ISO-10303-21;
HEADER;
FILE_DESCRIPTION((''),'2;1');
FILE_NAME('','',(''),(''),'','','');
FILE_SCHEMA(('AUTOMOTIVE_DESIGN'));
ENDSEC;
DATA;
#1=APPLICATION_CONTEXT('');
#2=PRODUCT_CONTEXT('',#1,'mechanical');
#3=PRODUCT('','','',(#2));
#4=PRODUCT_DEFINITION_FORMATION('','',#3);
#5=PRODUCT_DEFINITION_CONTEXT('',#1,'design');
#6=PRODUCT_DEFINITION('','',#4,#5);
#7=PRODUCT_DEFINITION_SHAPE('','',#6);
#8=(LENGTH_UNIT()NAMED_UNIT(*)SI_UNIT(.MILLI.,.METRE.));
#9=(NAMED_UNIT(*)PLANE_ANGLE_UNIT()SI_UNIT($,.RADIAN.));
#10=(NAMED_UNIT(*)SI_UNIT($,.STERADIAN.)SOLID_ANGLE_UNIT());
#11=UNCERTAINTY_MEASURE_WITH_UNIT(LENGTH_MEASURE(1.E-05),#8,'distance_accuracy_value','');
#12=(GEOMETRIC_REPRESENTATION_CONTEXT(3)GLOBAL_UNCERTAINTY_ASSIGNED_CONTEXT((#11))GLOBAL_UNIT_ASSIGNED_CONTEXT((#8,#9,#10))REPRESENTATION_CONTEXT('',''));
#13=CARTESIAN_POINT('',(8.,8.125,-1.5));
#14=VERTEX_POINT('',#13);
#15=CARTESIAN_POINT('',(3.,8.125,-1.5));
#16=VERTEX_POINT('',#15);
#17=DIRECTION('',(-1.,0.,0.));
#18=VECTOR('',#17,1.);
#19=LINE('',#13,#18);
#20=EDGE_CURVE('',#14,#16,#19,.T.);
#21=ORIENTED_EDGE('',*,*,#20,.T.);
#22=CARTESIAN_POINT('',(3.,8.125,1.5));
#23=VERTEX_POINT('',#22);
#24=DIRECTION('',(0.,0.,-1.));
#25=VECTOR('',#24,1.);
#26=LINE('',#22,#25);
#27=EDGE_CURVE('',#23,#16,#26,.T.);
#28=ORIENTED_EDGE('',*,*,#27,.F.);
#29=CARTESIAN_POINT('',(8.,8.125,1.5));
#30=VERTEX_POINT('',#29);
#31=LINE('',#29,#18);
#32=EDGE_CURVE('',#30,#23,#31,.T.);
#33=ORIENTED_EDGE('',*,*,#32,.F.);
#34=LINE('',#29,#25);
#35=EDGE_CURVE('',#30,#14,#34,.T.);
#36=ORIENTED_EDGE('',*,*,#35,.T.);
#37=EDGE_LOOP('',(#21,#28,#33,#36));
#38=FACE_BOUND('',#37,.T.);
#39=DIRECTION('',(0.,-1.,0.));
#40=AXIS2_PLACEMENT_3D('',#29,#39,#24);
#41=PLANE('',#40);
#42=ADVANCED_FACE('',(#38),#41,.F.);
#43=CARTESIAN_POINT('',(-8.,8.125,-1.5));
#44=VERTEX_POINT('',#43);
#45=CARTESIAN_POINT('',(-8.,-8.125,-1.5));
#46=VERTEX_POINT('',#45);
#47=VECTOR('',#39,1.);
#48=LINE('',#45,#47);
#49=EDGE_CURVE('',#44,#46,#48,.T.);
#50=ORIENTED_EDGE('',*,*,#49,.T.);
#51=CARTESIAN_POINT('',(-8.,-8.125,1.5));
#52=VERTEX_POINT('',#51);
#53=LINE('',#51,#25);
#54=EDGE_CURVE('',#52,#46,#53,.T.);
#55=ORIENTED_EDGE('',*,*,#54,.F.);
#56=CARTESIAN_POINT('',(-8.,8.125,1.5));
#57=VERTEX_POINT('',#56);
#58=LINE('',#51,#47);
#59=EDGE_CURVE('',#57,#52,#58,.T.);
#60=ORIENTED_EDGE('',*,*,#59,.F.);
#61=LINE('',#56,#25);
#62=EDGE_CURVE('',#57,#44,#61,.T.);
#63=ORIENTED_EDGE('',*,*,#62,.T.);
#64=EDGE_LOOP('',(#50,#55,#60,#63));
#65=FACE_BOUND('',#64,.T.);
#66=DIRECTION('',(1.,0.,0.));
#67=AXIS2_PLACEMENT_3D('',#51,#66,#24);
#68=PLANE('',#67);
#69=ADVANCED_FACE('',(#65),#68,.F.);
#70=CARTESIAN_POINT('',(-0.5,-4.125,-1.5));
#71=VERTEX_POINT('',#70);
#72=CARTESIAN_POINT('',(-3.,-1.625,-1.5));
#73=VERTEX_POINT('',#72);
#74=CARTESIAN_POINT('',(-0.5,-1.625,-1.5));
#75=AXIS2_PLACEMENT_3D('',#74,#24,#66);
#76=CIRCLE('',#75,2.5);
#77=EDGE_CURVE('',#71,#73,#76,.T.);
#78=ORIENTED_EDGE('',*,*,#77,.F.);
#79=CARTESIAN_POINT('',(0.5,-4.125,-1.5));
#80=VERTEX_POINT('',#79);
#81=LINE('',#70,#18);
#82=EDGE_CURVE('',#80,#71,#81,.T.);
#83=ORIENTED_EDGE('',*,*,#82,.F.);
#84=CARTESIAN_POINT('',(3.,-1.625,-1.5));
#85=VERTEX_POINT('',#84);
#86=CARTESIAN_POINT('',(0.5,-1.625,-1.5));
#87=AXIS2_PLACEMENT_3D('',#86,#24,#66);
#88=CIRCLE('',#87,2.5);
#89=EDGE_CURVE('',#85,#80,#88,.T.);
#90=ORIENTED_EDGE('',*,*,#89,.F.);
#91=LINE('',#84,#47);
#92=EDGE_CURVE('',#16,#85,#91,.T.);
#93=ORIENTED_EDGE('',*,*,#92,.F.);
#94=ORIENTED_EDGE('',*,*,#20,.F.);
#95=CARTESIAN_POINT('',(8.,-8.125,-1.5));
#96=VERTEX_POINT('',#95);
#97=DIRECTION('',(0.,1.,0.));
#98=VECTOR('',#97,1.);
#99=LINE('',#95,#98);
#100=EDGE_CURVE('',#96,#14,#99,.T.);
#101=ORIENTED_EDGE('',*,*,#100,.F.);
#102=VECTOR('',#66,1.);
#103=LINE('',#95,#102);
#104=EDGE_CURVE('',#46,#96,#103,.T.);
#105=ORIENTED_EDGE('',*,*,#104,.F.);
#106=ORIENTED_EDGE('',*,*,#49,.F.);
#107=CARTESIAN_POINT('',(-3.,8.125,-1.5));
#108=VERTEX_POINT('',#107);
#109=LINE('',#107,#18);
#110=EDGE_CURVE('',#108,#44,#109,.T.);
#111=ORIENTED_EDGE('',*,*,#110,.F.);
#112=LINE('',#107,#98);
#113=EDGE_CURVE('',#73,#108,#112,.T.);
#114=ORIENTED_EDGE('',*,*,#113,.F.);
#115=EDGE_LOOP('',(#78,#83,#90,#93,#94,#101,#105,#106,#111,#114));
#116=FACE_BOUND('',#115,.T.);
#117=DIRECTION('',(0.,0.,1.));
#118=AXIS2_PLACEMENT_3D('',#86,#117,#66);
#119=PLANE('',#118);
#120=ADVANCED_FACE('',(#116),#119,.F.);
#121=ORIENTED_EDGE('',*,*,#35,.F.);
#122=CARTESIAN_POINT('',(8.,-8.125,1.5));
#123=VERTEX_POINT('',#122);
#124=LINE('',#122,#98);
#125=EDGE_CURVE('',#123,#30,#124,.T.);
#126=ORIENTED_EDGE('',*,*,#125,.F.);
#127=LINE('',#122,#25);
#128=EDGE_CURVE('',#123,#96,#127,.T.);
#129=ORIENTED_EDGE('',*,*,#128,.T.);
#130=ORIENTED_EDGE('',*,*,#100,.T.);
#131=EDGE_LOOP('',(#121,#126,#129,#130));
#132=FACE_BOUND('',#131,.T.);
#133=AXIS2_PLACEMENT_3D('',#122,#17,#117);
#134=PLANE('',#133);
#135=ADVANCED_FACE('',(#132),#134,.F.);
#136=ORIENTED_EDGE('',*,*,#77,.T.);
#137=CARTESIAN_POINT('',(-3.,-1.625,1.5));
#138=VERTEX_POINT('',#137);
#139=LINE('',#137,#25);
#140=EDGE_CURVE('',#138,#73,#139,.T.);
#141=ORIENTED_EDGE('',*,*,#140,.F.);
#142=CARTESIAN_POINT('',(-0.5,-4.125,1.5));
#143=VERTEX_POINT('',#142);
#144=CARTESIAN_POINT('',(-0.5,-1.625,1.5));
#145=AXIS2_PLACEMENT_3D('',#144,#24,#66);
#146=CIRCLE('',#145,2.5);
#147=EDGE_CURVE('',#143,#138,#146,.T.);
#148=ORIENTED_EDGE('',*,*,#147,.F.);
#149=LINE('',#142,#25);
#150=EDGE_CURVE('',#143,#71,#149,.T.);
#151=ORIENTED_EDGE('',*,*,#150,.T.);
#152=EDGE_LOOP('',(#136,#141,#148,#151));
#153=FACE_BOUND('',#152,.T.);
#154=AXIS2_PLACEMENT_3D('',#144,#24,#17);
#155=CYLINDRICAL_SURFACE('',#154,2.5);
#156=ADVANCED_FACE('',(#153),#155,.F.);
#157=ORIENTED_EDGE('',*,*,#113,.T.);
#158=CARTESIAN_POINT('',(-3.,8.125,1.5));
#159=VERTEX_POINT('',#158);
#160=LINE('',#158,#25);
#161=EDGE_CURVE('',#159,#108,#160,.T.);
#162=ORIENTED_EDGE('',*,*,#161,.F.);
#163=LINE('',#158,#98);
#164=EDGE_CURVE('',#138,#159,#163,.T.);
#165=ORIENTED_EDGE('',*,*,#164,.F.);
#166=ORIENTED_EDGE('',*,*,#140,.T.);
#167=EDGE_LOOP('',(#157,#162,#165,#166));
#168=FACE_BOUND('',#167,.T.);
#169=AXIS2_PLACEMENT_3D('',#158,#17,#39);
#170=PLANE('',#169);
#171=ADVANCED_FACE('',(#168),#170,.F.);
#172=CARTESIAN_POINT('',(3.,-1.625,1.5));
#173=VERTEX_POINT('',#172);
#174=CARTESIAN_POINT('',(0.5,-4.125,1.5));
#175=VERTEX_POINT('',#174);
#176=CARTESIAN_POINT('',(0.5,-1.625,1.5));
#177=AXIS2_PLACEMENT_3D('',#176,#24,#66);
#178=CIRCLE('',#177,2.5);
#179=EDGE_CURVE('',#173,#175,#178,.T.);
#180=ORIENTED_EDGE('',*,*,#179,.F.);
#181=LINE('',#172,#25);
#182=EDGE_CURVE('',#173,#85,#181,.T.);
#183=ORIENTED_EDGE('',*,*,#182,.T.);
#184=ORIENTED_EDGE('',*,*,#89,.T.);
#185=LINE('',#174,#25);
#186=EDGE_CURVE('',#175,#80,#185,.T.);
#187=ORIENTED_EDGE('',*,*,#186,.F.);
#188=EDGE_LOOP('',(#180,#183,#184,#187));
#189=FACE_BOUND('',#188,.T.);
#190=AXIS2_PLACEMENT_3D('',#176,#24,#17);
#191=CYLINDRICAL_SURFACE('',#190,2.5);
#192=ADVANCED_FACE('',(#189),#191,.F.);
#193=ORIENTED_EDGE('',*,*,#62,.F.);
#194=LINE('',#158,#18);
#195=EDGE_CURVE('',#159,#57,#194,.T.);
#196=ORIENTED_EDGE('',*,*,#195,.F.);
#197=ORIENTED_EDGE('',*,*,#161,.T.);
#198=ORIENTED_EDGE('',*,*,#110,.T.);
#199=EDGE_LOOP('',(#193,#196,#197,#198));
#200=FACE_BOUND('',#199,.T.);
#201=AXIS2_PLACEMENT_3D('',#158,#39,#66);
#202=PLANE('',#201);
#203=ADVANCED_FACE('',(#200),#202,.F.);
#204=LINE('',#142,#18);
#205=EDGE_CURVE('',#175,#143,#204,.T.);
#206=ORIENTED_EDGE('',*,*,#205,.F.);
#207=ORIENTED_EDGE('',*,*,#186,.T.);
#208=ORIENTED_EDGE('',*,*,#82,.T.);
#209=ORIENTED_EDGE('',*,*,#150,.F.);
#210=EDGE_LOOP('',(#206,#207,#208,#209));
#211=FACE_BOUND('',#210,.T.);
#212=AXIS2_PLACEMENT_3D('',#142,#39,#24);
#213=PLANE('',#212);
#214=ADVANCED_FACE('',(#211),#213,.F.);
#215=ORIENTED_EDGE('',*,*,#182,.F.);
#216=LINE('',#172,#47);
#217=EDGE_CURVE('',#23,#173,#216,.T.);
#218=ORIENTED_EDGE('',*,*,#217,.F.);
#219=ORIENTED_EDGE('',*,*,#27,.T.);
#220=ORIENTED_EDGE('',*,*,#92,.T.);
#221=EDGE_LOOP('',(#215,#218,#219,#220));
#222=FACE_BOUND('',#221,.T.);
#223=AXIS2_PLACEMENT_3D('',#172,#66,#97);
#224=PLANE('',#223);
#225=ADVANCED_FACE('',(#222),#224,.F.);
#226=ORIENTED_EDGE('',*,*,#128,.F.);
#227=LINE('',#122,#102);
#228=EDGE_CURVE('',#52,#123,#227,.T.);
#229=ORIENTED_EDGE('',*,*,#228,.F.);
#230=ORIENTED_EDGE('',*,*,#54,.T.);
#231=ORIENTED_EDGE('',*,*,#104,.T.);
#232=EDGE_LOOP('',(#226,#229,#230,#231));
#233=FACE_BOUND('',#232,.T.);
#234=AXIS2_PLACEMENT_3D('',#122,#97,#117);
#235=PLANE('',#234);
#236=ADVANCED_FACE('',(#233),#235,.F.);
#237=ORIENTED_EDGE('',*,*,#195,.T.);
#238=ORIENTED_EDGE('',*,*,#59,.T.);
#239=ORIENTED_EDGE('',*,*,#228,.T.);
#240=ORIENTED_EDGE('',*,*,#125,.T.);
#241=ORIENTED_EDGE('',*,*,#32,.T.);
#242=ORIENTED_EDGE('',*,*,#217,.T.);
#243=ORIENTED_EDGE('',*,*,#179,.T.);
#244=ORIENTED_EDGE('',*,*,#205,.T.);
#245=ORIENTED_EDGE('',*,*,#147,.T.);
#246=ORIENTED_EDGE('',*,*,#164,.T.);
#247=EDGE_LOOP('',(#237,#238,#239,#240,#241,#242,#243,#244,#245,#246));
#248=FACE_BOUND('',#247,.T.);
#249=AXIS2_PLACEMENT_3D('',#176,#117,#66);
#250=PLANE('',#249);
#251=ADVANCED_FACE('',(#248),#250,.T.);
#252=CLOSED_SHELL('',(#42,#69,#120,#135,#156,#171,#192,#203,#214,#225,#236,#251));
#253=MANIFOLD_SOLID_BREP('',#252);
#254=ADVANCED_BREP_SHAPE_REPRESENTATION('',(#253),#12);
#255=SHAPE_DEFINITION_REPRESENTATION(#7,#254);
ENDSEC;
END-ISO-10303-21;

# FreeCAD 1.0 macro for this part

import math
import FreeCAD as App
import Part
import Sketcher

V = App.Vector
Q = App.Units.Quantity

doc = App.newDocument("Part")
params = doc.addObject("Spreadsheet::Sheet", "Params")
for row, (alias, value) in enumerate([
    ("sketch1_radius", "2.5 mm"),
    ("sketch1_width", "16 mm"),
    ("sketch1_width2", "5 mm"),
    ("sketch1_height", "16.25 mm"),
    ("pad1_length", "3 mm"),
], start=1):
    params.set(f"A{row}", alias)
    params.set(f"B{row}", "=" + value)
    params.setAlias(f"B{row}", alias)

body = doc.addObject("PartDesign::Body", "Body")

sketch1 = body.newObject("Sketcher::SketchObject", "Sketch")
sketch1.AttachmentSupport = (doc.getObject("XY_Plane"), [""])
sketch1.MapMode = "FlatFace"
sketch1.addGeometry([
    Part.LineSegment(V(-8, -8.125, 0), V(8, -8.125, 0)),
    Part.LineSegment(V(8, -8.125, 0), V(8, 8.125, 0)),
    Part.LineSegment(V(8, 8.125, 0), V(3, 8.125, 0)),
    Part.LineSegment(V(3, 8.125, 0), V(3, -1.625, 0)),
    Part.ArcOfCircle(Part.Circle(V(0.5, -1.625, 0), V(0, 0, 1), 2.5), math.radians(-90), math.radians(0)),
    Part.LineSegment(V(0.5, -4.125, 0), V(-0.5, -4.125, 0)),
    Part.ArcOfCircle(Part.Circle(V(-0.5, -1.625, 0), V(0, 0, 1), 2.5), math.radians(180), math.radians(270)),
    Part.LineSegment(V(-3, -1.625, 0), V(-3, 8.125, 0)),
    Part.LineSegment(V(-3, 8.125, 0), V(-8, 8.125, 0)),
    Part.LineSegment(V(-8, 8.125, 0), V(-8, -8.125, 0)),
], False)
sketch1.addConstraint([
    Sketcher.Constraint("Coincident", 0, 2, 1, 1),
    Sketcher.Constraint("Coincident", 1, 2, 2, 1),
    Sketcher.Constraint("Coincident", 2, 2, 3, 1),
    Sketcher.Constraint("Tangent", 3, 2, 4, 2),
    Sketcher.Constraint("Tangent", 4, 1, 5, 1),
    Sketcher.Constraint("Tangent", 5, 2, 6, 2),
    Sketcher.Constraint("Tangent", 6, 1, 7, 1),
    Sketcher.Constraint("Coincident", 7, 2, 8, 1),
    Sketcher.Constraint("Coincident", 8, 2, 9, 1),
    Sketcher.Constraint("Coincident", 9, 2, 0, 1),
    Sketcher.Constraint("Horizontal", 0),
    Sketcher.Constraint("Vertical", 1),
    Sketcher.Constraint("Horizontal", 2),
    Sketcher.Constraint("Vertical", 3),
    Sketcher.Constraint("Horizontal", 5),
    Sketcher.Constraint("Vertical", 7),
    Sketcher.Constraint("Horizontal", 8),
    Sketcher.Constraint("Vertical", 9),
    Sketcher.Constraint("Equal", 4, 6),
    Sketcher.Constraint("Symmetric", 0, 2, 8, 2, -1, 1),
    Sketcher.Constraint("Symmetric", 2, 2, 7, 2, -2),
    Sketcher.Constraint("Radius", 4, Q("2.5 mm")),
    Sketcher.Constraint("DistanceX", 0, 1, 0, 2, Q("16 mm")),
    Sketcher.Constraint("DistanceX", 2, 2, 2, 1, Q("5 mm")),
    Sketcher.Constraint("DistanceY", 0, 2, 4, 1, Q("4 mm")),
    Sketcher.Constraint("DistanceY", 1, 1, 1, 2, Q("16.25 mm")),
])
sketch1.setExpression("Constraints[21]", "Params.sketch1_radius")
sketch1.setExpression("Constraints[22]", "Params.sketch1_width")
sketch1.setExpression("Constraints[23]", "Params.sketch1_width2")
sketch1.setExpression("Constraints[25]", "Params.sketch1_height")
pad1 = body.newObject("PartDesign::Pad", "Pad")
pad1.Profile = sketch1
pad1.setExpression("Length", "Params.pad1_length")
pad1.Midplane = True

doc.recompute()
